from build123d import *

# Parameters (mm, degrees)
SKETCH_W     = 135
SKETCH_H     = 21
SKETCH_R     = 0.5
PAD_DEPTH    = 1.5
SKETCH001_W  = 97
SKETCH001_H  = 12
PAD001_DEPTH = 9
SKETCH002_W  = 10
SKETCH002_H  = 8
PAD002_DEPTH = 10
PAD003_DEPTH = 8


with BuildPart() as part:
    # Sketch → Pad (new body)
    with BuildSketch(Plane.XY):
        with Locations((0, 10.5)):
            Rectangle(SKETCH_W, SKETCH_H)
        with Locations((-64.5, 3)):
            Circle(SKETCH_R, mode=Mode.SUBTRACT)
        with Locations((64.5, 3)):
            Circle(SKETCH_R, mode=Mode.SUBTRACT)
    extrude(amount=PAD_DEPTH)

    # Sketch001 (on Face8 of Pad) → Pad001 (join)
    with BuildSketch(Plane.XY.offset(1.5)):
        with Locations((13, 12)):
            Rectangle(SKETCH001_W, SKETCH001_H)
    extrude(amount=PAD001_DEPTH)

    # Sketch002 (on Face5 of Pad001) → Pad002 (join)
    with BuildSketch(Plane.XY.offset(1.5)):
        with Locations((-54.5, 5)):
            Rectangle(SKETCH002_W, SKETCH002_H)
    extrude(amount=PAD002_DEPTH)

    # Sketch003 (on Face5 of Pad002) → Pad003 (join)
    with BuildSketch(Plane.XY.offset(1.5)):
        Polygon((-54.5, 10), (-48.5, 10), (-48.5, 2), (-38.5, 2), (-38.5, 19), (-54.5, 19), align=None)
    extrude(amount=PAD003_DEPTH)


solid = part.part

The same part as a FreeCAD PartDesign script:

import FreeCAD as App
import Part
import Sketcher
from FreeCAD import Vector
Q = App.Units.Quantity

doc = App.newDocument("Part")
body = doc.addObject("PartDesign::Body", "Body")

# Sketch on XY plane
sketch1 = body.newObject("Sketcher::SketchObject", "Sketch")
sketch1.AttachmentSupport = (doc.getObject("XY_Plane"), [""])
sketch1.MapMode = "FlatFace"
sketch1.addGeometry([
    Part.LineSegment(Vector(-67.5, 21, 0), Vector(-67.5, 0, 0)),  # 0
    Part.LineSegment(Vector(-67.5, 0, 0), Vector(67.5, 0, 0)),  # 1
    Part.LineSegment(Vector(67.5, 0, 0), Vector(67.5, 21, 0)),  # 2
    Part.LineSegment(Vector(67.5, 21, 0), Vector(-67.5, 21, 0)),  # 3
    Part.Circle(Vector(-64.5, 3, 0), Vector(0, 0, 1), 0.5),  # 4
    Part.Circle(Vector(64.5, 3, 0), Vector(0, 0, 1), 0.5),  # 5
], False)
sketch1.addConstraint([
    Sketcher.Constraint("Coincident", 0, 2, 1, 1),
    Sketcher.Constraint("Coincident", 1, 2, 2, 1),
    Sketcher.Constraint("Coincident", 2, 2, 3, 1),
    Sketcher.Constraint("Coincident", 3, 2, 0, 1),
    Sketcher.Constraint("Vertical", 0),
    Sketcher.Constraint("Horizontal", 1),
    Sketcher.Constraint("Vertical", 2),
    Sketcher.Constraint("Horizontal", 3),
    Sketcher.Constraint("Equal", 4, 5),
    Sketcher.Constraint("Symmetric", 0, 2, 1, 2, -1, 1),
    Sketcher.Constraint("Symmetric", 4, 3, 5, 3, -2),
    Sketcher.Constraint("Diameter", 4, Q("1 mm")),
    Sketcher.Constraint("DistanceX", 1, 1, 1, 2, Q("135 mm")),
    Sketcher.Constraint("DistanceY", 0, 2, 0, 1, Q("21 mm")),
    Sketcher.Constraint("DistanceY", -1, 1, 4, 3, Q("3 mm")),
    Sketcher.Constraint("DistanceX", 4, 3, 5, 3, Q("129 mm")),
])
pad1 = body.newObject("PartDesign::Pad", "Pad")
pad1.Profile = sketch1
pad1.Length = 1.5

# Sketch on XY plane
sketch2 = body.newObject("Sketcher::SketchObject", "Sketch001")
sketch2.AttachmentSupport = (doc.getObject("XY_Plane"), [""])
sketch2.MapMode = "FlatFace"
sketch2.AttachmentOffset = App.Placement(Vector(0, 0, 1.5), App.Rotation())
sketch2.addGeometry([
    Part.LineSegment(Vector(-36, 18, 0), Vector(-36, 6, 0)),
    Part.LineSegment(Vector(-36, 6, 0), Vector(62, 6, 0)),
    Part.LineSegment(Vector(62, 6, 0), Vector(62, 18, 0)),
    Part.LineSegment(Vector(62, 18, 0), Vector(-36, 18, 0)),
], False)
sketch2.addConstraint([
    Sketcher.Constraint("Coincident", 0, 2, 1, 1),
    Sketcher.Constraint("Coincident", 1, 2, 2, 1),
    Sketcher.Constraint("Coincident", 2, 2, 3, 1),
    Sketcher.Constraint("Coincident", 3, 2, 0, 1),
    Sketcher.Constraint("Vertical", 0),
    Sketcher.Constraint("Horizontal", 1),
    Sketcher.Constraint("Vertical", 2),
    Sketcher.Constraint("Horizontal", 3),
    Sketcher.Constraint("DistanceX", 1, 1, 1, 2, Q("97 mm")),
    Sketcher.Constraint("DistanceY", 0, 2, 0, 1, Q("12 mm")),
    Sketcher.Constraint("DistanceY", -1, 1, 0, 2, Q("6 mm")),
    Sketcher.Constraint("DistanceX", 0, 2, -1, 1, Q("35.5 mm")),
])
pad2 = body.newObject("PartDesign::Pad", "Pad001")
pad2.Profile = sketch2
pad2.Length = 9

# Sketch on XY plane
sketch3 = body.newObject("Sketcher::SketchObject", "Sketch002")
sketch3.AttachmentSupport = (doc.getObject("XY_Plane"), [""])
sketch3.MapMode = "FlatFace"
sketch3.AttachmentOffset = App.Placement(Vector(0, 0, 1.5), App.Rotation())
sketch3.addGeometry([
    Part.LineSegment(Vector(-60, 9, 0), Vector(-60, 1, 0)),
    Part.LineSegment(Vector(-60, 1, 0), Vector(-50, 1, 0)),
    Part.LineSegment(Vector(-50, 1, 0), Vector(-50, 9, 0)),
    Part.LineSegment(Vector(-50, 9, 0), Vector(-60, 9, 0)),
], False)
sketch3.addConstraint([
    Sketcher.Constraint("Coincident", 0, 2, 1, 1),
    Sketcher.Constraint("Coincident", 1, 2, 2, 1),
    Sketcher.Constraint("Coincident", 2, 2, 3, 1),
    Sketcher.Constraint("Coincident", 3, 2, 0, 1),
    Sketcher.Constraint("Vertical", 0),
    Sketcher.Constraint("Horizontal", 1),
    Sketcher.Constraint("Vertical", 2),
    Sketcher.Constraint("Horizontal", 3),
    Sketcher.Constraint("DistanceX", 1, 1, 1, 2, Q("10 mm")),
    Sketcher.Constraint("DistanceY", 0, 2, 0, 1, Q("8 mm")),
    Sketcher.Constraint("DistanceY", -1, 1, 0, 2, Q("1 mm")),
    Sketcher.Constraint("DistanceX", 0, 2, -1, 1, Q("59.5 mm")),
])
pad3 = body.newObject("PartDesign::Pad", "Pad002")
pad3.Profile = sketch3
pad3.Length = 10

# Sketch on XY plane
sketch4 = body.newObject("Sketcher::SketchObject", "Sketch003")
sketch4.AttachmentSupport = (doc.getObject("XY_Plane"), [""])
sketch4.MapMode = "FlatFace"
sketch4.AttachmentOffset = App.Placement(Vector(0, 0, 1.5), App.Rotation())
sketch4.addGeometry([
    Part.LineSegment(Vector(-54, 10, 0), Vector(-48, 10, 0)),  # 0
    Part.LineSegment(Vector(-48, 10, 0), Vector(-48, 2, 0)),  # 1
    Part.LineSegment(Vector(-48, 2, 0), Vector(-38, 2, 0)),  # 2
    Part.LineSegment(Vector(-38, 2, 0), Vector(-38, 19, 0)),  # 3
    Part.LineSegment(Vector(-38, 19, 0), Vector(-54, 19, 0)),  # 4
    Part.LineSegment(Vector(-54, 19, 0), Vector(-54, 10, 0)),  # 5
], False)
sketch4.addConstraint([
    Sketcher.Constraint("Coincident", 0, 2, 1, 1),
    Sketcher.Constraint("Coincident", 1, 2, 2, 1),
    Sketcher.Constraint("Coincident", 2, 2, 3, 1),
    Sketcher.Constraint("Coincident", 3, 2, 4, 1),
    Sketcher.Constraint("Coincident", 4, 2, 5, 1),
    Sketcher.Constraint("Coincident", 5, 2, 0, 1),
    Sketcher.Constraint("Horizontal", 0),
    Sketcher.Constraint("Vertical", 1),
    Sketcher.Constraint("Horizontal", 2),
    Sketcher.Constraint("Vertical", 3),
    Sketcher.Constraint("Horizontal", 4),
    Sketcher.Constraint("Vertical", 5),
    Sketcher.Constraint("DistanceX", 0, 1, 0, 2, Q("6 mm")),
    Sketcher.Constraint("DistanceX", 2, 1, 2, 2, Q("10 mm")),
    Sketcher.Constraint("DistanceY", 1, 2, 1, 1, Q("8 mm")),
    Sketcher.Constraint("DistanceY", 3, 1, 3, 2, Q("17 mm")),
    Sketcher.Constraint("DistanceY", -1, 1, 0, 2, Q("10 mm")),
    Sketcher.Constraint("DistanceX", 0, 2, -1, 1, Q("48.5 mm")),
])
pad4 = body.newObject("PartDesign::Pad", "Pad003")
pad4.Profile = sketch4
pad4.Length = 8

doc.recompute()
